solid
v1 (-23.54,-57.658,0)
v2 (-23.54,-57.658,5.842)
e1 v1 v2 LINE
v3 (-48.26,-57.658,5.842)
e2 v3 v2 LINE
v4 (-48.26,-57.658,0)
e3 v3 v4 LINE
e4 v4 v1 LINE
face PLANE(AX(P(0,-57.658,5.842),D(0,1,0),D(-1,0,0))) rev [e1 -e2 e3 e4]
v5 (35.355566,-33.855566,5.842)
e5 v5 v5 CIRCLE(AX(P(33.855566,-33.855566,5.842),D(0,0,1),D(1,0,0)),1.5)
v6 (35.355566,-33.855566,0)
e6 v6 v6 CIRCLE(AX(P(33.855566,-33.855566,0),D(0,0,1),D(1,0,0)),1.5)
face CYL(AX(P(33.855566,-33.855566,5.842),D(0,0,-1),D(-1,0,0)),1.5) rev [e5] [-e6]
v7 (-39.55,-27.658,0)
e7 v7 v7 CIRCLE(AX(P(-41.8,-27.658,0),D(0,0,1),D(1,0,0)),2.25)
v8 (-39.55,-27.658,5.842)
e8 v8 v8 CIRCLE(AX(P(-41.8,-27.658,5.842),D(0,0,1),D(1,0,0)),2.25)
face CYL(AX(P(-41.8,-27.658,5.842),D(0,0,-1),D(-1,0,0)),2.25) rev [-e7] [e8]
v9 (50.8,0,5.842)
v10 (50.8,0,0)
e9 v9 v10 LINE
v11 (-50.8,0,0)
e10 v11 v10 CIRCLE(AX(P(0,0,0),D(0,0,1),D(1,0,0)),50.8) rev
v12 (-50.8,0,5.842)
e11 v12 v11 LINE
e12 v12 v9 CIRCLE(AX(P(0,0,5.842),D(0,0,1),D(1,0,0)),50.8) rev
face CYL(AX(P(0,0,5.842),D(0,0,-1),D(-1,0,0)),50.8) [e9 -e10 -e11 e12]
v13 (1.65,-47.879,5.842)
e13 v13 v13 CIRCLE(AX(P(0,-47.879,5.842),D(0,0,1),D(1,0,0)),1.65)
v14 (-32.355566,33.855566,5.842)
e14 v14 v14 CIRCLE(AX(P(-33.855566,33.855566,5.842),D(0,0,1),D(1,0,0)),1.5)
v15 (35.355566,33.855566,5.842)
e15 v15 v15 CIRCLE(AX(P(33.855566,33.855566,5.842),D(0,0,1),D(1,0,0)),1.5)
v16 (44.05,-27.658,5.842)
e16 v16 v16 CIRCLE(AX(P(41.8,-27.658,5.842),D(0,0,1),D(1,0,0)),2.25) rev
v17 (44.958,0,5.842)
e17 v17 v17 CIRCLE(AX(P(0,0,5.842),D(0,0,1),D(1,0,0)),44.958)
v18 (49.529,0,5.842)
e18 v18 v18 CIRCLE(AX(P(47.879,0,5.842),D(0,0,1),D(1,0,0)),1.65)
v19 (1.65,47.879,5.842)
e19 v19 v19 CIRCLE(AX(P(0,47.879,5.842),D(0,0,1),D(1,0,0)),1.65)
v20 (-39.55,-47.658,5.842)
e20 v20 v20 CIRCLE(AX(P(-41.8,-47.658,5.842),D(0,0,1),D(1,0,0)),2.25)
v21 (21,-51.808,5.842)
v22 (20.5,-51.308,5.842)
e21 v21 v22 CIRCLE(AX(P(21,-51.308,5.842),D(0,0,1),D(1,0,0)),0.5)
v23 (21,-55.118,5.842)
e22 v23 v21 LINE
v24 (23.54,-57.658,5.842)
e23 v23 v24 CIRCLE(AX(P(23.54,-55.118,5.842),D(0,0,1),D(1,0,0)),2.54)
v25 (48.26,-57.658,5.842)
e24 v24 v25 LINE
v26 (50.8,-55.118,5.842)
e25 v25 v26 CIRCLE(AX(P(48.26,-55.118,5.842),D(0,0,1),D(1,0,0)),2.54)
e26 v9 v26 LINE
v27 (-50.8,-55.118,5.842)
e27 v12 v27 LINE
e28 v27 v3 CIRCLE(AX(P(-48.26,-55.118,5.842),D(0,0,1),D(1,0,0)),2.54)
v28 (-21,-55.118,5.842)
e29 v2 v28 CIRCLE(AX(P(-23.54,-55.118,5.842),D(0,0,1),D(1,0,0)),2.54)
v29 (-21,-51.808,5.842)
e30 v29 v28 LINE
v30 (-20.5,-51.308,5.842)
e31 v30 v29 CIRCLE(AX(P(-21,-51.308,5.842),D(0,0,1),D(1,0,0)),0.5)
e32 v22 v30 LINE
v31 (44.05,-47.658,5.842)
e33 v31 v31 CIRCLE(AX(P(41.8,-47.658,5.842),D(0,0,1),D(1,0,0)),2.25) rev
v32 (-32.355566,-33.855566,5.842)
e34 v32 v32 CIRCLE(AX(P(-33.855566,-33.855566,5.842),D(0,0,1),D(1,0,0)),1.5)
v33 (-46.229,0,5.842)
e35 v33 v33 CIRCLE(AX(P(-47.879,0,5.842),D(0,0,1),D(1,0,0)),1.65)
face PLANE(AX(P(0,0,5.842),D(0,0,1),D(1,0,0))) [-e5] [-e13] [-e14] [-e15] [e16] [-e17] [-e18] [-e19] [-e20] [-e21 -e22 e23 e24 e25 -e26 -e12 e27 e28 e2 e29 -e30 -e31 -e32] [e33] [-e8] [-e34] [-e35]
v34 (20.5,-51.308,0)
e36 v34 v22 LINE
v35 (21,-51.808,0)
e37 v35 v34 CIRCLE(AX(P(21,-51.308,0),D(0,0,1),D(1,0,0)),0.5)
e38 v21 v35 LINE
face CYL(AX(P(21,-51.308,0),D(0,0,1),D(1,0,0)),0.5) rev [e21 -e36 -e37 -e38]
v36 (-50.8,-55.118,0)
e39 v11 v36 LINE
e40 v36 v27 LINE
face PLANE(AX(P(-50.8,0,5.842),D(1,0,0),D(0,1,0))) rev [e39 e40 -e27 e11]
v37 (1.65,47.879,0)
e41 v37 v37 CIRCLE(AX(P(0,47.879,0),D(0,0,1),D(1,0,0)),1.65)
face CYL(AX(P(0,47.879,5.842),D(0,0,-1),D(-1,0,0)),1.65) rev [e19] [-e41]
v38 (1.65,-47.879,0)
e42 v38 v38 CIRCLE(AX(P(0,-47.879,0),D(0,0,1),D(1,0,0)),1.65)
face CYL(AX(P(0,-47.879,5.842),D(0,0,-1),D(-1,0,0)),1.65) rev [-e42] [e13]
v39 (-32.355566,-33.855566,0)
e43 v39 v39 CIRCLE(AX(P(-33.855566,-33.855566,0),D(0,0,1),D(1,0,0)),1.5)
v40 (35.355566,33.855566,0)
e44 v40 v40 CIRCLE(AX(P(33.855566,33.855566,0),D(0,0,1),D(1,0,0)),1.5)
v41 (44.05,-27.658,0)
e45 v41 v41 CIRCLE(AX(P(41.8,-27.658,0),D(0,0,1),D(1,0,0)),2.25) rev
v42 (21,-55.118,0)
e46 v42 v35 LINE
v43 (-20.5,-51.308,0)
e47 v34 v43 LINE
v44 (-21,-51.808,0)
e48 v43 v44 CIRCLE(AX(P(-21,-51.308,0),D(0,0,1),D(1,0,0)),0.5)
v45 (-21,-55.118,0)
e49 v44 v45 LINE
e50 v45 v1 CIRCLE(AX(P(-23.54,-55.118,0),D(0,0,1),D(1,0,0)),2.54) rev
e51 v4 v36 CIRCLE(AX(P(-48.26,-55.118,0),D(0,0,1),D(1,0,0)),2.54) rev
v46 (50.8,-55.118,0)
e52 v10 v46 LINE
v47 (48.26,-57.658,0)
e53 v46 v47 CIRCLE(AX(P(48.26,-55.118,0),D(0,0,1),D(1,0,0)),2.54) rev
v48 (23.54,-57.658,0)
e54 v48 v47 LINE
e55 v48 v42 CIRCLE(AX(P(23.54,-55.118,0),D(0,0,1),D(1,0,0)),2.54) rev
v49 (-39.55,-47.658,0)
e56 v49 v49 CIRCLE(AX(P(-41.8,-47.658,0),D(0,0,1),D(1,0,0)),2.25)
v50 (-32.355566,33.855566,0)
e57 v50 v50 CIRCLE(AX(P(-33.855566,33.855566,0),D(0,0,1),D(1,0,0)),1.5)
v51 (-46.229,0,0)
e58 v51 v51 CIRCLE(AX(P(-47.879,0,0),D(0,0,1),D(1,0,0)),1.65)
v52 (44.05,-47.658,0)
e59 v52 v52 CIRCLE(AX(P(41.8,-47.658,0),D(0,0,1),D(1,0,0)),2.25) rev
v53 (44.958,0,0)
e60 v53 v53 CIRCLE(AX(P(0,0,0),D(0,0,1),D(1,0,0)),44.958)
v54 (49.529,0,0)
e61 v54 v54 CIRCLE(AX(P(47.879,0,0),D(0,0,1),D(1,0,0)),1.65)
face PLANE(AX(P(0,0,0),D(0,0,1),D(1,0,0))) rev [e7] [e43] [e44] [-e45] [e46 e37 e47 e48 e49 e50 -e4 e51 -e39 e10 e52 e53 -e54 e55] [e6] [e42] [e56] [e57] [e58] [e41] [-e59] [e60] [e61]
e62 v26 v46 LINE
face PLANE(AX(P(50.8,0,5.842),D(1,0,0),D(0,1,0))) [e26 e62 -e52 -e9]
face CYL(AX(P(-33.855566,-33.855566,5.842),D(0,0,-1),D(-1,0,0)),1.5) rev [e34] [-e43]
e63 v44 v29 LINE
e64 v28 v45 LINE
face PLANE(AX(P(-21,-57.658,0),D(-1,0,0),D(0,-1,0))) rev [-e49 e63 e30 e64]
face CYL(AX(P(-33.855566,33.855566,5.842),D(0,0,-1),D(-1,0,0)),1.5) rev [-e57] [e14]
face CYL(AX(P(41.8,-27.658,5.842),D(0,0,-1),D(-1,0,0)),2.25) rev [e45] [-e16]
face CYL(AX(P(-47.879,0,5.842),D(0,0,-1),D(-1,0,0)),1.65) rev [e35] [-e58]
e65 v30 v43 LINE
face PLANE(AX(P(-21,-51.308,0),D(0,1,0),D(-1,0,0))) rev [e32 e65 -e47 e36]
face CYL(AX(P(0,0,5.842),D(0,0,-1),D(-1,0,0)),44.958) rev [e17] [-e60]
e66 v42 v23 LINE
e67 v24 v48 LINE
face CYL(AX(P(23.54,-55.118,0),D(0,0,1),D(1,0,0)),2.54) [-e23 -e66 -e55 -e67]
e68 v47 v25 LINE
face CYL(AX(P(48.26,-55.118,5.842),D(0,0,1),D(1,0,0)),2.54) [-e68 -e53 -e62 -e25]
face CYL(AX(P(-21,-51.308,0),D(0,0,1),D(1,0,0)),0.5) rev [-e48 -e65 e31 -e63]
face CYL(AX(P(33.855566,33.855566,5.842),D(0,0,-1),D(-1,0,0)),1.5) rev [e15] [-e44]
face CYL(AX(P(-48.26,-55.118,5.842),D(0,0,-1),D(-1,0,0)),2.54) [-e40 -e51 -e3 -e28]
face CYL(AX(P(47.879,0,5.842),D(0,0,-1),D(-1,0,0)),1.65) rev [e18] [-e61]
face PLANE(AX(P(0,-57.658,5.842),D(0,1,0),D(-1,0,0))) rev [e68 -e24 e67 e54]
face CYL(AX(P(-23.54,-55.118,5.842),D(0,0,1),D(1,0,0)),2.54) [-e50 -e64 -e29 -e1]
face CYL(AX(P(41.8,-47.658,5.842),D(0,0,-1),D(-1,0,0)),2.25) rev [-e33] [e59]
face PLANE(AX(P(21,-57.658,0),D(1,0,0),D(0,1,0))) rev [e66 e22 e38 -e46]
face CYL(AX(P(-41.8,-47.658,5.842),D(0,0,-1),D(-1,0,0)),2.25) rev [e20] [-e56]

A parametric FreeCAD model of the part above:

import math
import FreeCAD as App
import Part
import Sketcher
Q = App.Units.Quantity


def edges_at(feature, points):
    """Names of the edges that pass closest to the given points."""
    edges = feature.Shape.Edges
    near = lambda p: min(range(len(edges)), key=lambda i: edges[i].distToShape(Part.Vertex(*p))[0])
    return sorted({f"Edge{near(p) + 1}" for p in points})


def add_polygon(sketch, points):
    """Adds a closed chain of lines whose ends are joined by coincident constraints."""
    first, n = sketch.GeometryCount, len(points)
    for a, b in zip(points, points[1:] + points[:1]):
        sketch.addGeometry(Part.LineSegment(App.Vector(*a, 0), App.Vector(*b, 0)), False)
    for i in range(n):
        sketch.addConstraint(Sketcher.Constraint("Coincident", first + i, 2, first + (i + 1) % n, 1))

doc = App.newDocument("Part")
body = doc.addObject("PartDesign::Body", "Body")

# Sketch on XY plane
sketch1 = body.newObject("Sketcher::SketchObject", "Sketch")
sketch1.AttachmentSupport = (doc.getObject("XY_Plane"), [""])
sketch1.MapMode = "FlatFace"
sketch1.addGeometry([
    Part.LineSegment(App.Vector(-50.8, 0, 0), App.Vector(-50.8, -57.7, 0)),  # 0
    Part.LineSegment(App.Vector(-50.8, -57.7, 0), App.Vector(50.8, -57.7, 0)),  # 1
    Part.LineSegment(App.Vector(50.8, -57.7, 0), App.Vector(50.8, 0, 0)),  # 2
    Part.ArcOfCircle(Part.Circle(App.Vector(0, 0, 0), App.Vector(0, 0, 1), 50.8), math.radians(0), math.radians(180)),  # 3
    Part.Circle(App.Vector(-41.8, -47.7, 0), App.Vector(0, 0, 1), 2.2),  # 4
    Part.Circle(App.Vector(-41.8, -27.7, 0), App.Vector(0, 0, 1), 2.2),  # 5
    Part.Circle(App.Vector(-33.9, -33.9, 0), App.Vector(0, 0, 1), 1.5),  # 6
    Part.Circle(App.Vector(0, -47.9, 0), App.Vector(0, 0, 1), 1.6),  # 7
    Part.Circle(App.Vector(41.8, -47.7, 0), App.Vector(0, 0, 1), 2.2),  # 8
    Part.Circle(App.Vector(33.9, -33.9, 0), App.Vector(0, 0, 1), 1.5),  # 9
    Part.Circle(App.Vector(41.8, -27.7, 0), App.Vector(0, 0, 1), 2.2),  # 10
    Part.Circle(App.Vector(-47.9, 0, 0), App.Vector(0, 0, 1), 1.6),  # 11
    Part.Circle(App.Vector(-33.9, 33.9, 0), App.Vector(0, 0, 1), 1.5),  # 12
    Part.Circle(App.Vector(0, 0, 0), App.Vector(0, 0, 1), 45),  # 13
    Part.Circle(App.Vector(47.9, 0, 0), App.Vector(0, 0, 1), 1.6),  # 14
    Part.Circle(App.Vector(0, 47.9, 0), App.Vector(0, 0, 1), 1.6),  # 15
    Part.Circle(App.Vector(33.9, 33.9, 0), App.Vector(0, 0, 1), 1.5),  # 16
], False)
sketch1.addConstraint([
    Sketcher.Constraint("Coincident", 0, 2, 1, 1),
    Sketcher.Constraint("Coincident", 1, 2, 2, 1),
    Sketcher.Constraint("Tangent", 2, 2, 3, 1),
    Sketcher.Constraint("Tangent", 3, 2, 0, 1),
    Sketcher.Constraint("Vertical", 0),
    Sketcher.Constraint("Horizontal", 1),
    Sketcher.Constraint("Vertical", 2),
    Sketcher.Constraint("Coincident", 3, 3, -1, 1),
    Sketcher.Constraint("Coincident", 13, 3, -1, 1),
    Sketcher.Constraint("Equal", 4, 5),
    Sketcher.Constraint("Equal", 5, 8),
    Sketcher.Constraint("Equal", 6, 9),
    Sketcher.Constraint("Equal", 8, 10),
    Sketcher.Constraint("Equal", 7, 11),
    Sketcher.Constraint("Equal", 9, 12),
    Sketcher.Constraint("Equal", 11, 14),
    Sketcher.Constraint("Equal", 14, 15),
    Sketcher.Constraint("Equal", 12, 16),
    Sketcher.Constraint("Symmetric", 9, 3, 12, 3, -1, 1),
    Sketcher.Constraint("Symmetric", 11, 3, 14, 3, -1, 1),
    Sketcher.Constraint("Symmetric", 7, 3, 15, 3, -1, 1),
    Sketcher.Constraint("Symmetric", 6, 3, 16, 3, -1, 1),
    Sketcher.Constraint("Symmetric", 4, 3, 8, 3, -2),
    Sketcher.Constraint("Symmetric", 6, 3, 9, 3, -2),
    Sketcher.Constraint("Symmetric", 5, 3, 10, 3, -2),
    Sketcher.Constraint("PointOnObject", 7, 3, -2),
    Sketcher.Constraint("PointOnObject", 11, 3, -1),
    Sketcher.Constraint("Vertical", 4, 3, 5, 3),
    Sketcher.Constraint("Radius", 3, Q("2 in")),
    Sketcher.Constraint("Diameter", 13, Q("3.54 in")),
    Sketcher.Constraint("DistanceY", 0, 2, 0, 1, Q("2.27 in")),
    Sketcher.Constraint("Diameter", 4, Q("4.5 mm")),
    Sketcher.Constraint("Diameter", 6, Q("3 mm")),
    Sketcher.Constraint("Diameter", 7, Q("3.3 mm")),
    Sketcher.Constraint("DistanceY", 7, 3, -1, 1, Q("1.885 in")),
    Sketcher.Constraint("DistanceX", 11, 3, -1, 1, Q("1.885 in")),
    Sketcher.Constraint("DistanceX", 4, 3, -1, 1, Q("41.8 mm")),
    Sketcher.Constraint("DistanceY", 4, 3, -1, 1, Q("47.658 mm")),
    Sketcher.Constraint("DistanceY", 5, 3, -1, 1, Q("27.658 mm")),
    Sketcher.Constraint("DistanceX", 6, 3, 9, 3, Q("67.711131 mm")),
    Sketcher.Constraint("DistanceY", 6, 3, 12, 3, Q("67.711131 mm")),
])
pad1 = body.newObject("PartDesign::Pad", "Pad")
pad1.Profile = sketch1
pad1.Length = Q("0.23 in")

# Sketch on XY plane
sketch2 = body.newObject("Sketcher::SketchObject", "Sketch001")
sketch2.AttachmentSupport = (doc.getObject("XY_Plane"), [""])
sketch2.MapMode = "FlatFace"
sketch2.AttachmentOffset = App.Placement(App.Vector(0, 0, 0.23 * 25.4), App.Rotation())
add_polygon(sketch2, [(-21, -51), (-21, -58), (21, -58), (21, -51)])  # lines 0-3
sketch2.addConstraint([
    Sketcher.Constraint("Vertical", 0),
    Sketcher.Constraint("Horizontal", 1),
    Sketcher.Constraint("Vertical", 2),
    Sketcher.Constraint("Horizontal", 3),
    Sketcher.Constraint("DistanceY", 0, 2, 0, 1, Q("0.25 in")),
    Sketcher.Constraint("DistanceY", 0, 2, -1, 1, Q("2.27 in")),
    Sketcher.Constraint("DistanceX", 1, 1, 1, 2, Q("42 mm")),
    Sketcher.Constraint("DistanceX", 0, 2, -1, 1, Q("21 mm")),
])
pocket1 = body.newObject("PartDesign::Pocket", "Pocket")
pocket1.Profile = sketch2
pocket1.Type = "ThroughAll"

# Sketch on XY plane
sketch3 = body.newObject("Sketcher::SketchObject", "Sketch002")
sketch3.AttachmentSupport = (doc.getObject("XY_Plane"), [""])
sketch3.MapMode = "FlatFace"
sketch3.AttachmentOffset = App.Placement(App.Vector(0, 0, 0.23 * 25.4), App.Rotation())
sketch3.addGeometry([
    Part.Circle(App.Vector(-21, -51.3, 0), App.Vector(0, 0, 1), 0.5),
    Part.Circle(App.Vector(21, -51.3, 0), App.Vector(0, 0, 1), 0.5),
], False)
sketch3.addConstraint([
    Sketcher.Constraint("Equal", 0, 1),
    Sketcher.Constraint("Symmetric", 0, 3, 1, 3, -2),
    Sketcher.Constraint("Diameter", 0, Q("1 mm")),
    Sketcher.Constraint("DistanceY", 0, 3, -1, 1, Q("2.02 in")),
    Sketcher.Constraint("DistanceX", 0, 3, -1, 1, Q("21 mm")),
])
pocket2 = body.newObject("PartDesign::Pocket", "Pocket001")
pocket2.Profile = sketch3
pocket2.Type = "ThroughAll"
doc.recompute()

fillet = body.newObject("PartDesign::Fillet", "Fillet")
fillet.Base = (pocket2, edges_at(pocket2, [
    (50.8, -57.658, 2.921),
    (-50.8, -57.658, 2.921),
    (-21, -57.658, 2.921),
    (21, -57.658, 2.921),
]))
fillet.Radius = Q("0.1 in")

doc.recompute()
